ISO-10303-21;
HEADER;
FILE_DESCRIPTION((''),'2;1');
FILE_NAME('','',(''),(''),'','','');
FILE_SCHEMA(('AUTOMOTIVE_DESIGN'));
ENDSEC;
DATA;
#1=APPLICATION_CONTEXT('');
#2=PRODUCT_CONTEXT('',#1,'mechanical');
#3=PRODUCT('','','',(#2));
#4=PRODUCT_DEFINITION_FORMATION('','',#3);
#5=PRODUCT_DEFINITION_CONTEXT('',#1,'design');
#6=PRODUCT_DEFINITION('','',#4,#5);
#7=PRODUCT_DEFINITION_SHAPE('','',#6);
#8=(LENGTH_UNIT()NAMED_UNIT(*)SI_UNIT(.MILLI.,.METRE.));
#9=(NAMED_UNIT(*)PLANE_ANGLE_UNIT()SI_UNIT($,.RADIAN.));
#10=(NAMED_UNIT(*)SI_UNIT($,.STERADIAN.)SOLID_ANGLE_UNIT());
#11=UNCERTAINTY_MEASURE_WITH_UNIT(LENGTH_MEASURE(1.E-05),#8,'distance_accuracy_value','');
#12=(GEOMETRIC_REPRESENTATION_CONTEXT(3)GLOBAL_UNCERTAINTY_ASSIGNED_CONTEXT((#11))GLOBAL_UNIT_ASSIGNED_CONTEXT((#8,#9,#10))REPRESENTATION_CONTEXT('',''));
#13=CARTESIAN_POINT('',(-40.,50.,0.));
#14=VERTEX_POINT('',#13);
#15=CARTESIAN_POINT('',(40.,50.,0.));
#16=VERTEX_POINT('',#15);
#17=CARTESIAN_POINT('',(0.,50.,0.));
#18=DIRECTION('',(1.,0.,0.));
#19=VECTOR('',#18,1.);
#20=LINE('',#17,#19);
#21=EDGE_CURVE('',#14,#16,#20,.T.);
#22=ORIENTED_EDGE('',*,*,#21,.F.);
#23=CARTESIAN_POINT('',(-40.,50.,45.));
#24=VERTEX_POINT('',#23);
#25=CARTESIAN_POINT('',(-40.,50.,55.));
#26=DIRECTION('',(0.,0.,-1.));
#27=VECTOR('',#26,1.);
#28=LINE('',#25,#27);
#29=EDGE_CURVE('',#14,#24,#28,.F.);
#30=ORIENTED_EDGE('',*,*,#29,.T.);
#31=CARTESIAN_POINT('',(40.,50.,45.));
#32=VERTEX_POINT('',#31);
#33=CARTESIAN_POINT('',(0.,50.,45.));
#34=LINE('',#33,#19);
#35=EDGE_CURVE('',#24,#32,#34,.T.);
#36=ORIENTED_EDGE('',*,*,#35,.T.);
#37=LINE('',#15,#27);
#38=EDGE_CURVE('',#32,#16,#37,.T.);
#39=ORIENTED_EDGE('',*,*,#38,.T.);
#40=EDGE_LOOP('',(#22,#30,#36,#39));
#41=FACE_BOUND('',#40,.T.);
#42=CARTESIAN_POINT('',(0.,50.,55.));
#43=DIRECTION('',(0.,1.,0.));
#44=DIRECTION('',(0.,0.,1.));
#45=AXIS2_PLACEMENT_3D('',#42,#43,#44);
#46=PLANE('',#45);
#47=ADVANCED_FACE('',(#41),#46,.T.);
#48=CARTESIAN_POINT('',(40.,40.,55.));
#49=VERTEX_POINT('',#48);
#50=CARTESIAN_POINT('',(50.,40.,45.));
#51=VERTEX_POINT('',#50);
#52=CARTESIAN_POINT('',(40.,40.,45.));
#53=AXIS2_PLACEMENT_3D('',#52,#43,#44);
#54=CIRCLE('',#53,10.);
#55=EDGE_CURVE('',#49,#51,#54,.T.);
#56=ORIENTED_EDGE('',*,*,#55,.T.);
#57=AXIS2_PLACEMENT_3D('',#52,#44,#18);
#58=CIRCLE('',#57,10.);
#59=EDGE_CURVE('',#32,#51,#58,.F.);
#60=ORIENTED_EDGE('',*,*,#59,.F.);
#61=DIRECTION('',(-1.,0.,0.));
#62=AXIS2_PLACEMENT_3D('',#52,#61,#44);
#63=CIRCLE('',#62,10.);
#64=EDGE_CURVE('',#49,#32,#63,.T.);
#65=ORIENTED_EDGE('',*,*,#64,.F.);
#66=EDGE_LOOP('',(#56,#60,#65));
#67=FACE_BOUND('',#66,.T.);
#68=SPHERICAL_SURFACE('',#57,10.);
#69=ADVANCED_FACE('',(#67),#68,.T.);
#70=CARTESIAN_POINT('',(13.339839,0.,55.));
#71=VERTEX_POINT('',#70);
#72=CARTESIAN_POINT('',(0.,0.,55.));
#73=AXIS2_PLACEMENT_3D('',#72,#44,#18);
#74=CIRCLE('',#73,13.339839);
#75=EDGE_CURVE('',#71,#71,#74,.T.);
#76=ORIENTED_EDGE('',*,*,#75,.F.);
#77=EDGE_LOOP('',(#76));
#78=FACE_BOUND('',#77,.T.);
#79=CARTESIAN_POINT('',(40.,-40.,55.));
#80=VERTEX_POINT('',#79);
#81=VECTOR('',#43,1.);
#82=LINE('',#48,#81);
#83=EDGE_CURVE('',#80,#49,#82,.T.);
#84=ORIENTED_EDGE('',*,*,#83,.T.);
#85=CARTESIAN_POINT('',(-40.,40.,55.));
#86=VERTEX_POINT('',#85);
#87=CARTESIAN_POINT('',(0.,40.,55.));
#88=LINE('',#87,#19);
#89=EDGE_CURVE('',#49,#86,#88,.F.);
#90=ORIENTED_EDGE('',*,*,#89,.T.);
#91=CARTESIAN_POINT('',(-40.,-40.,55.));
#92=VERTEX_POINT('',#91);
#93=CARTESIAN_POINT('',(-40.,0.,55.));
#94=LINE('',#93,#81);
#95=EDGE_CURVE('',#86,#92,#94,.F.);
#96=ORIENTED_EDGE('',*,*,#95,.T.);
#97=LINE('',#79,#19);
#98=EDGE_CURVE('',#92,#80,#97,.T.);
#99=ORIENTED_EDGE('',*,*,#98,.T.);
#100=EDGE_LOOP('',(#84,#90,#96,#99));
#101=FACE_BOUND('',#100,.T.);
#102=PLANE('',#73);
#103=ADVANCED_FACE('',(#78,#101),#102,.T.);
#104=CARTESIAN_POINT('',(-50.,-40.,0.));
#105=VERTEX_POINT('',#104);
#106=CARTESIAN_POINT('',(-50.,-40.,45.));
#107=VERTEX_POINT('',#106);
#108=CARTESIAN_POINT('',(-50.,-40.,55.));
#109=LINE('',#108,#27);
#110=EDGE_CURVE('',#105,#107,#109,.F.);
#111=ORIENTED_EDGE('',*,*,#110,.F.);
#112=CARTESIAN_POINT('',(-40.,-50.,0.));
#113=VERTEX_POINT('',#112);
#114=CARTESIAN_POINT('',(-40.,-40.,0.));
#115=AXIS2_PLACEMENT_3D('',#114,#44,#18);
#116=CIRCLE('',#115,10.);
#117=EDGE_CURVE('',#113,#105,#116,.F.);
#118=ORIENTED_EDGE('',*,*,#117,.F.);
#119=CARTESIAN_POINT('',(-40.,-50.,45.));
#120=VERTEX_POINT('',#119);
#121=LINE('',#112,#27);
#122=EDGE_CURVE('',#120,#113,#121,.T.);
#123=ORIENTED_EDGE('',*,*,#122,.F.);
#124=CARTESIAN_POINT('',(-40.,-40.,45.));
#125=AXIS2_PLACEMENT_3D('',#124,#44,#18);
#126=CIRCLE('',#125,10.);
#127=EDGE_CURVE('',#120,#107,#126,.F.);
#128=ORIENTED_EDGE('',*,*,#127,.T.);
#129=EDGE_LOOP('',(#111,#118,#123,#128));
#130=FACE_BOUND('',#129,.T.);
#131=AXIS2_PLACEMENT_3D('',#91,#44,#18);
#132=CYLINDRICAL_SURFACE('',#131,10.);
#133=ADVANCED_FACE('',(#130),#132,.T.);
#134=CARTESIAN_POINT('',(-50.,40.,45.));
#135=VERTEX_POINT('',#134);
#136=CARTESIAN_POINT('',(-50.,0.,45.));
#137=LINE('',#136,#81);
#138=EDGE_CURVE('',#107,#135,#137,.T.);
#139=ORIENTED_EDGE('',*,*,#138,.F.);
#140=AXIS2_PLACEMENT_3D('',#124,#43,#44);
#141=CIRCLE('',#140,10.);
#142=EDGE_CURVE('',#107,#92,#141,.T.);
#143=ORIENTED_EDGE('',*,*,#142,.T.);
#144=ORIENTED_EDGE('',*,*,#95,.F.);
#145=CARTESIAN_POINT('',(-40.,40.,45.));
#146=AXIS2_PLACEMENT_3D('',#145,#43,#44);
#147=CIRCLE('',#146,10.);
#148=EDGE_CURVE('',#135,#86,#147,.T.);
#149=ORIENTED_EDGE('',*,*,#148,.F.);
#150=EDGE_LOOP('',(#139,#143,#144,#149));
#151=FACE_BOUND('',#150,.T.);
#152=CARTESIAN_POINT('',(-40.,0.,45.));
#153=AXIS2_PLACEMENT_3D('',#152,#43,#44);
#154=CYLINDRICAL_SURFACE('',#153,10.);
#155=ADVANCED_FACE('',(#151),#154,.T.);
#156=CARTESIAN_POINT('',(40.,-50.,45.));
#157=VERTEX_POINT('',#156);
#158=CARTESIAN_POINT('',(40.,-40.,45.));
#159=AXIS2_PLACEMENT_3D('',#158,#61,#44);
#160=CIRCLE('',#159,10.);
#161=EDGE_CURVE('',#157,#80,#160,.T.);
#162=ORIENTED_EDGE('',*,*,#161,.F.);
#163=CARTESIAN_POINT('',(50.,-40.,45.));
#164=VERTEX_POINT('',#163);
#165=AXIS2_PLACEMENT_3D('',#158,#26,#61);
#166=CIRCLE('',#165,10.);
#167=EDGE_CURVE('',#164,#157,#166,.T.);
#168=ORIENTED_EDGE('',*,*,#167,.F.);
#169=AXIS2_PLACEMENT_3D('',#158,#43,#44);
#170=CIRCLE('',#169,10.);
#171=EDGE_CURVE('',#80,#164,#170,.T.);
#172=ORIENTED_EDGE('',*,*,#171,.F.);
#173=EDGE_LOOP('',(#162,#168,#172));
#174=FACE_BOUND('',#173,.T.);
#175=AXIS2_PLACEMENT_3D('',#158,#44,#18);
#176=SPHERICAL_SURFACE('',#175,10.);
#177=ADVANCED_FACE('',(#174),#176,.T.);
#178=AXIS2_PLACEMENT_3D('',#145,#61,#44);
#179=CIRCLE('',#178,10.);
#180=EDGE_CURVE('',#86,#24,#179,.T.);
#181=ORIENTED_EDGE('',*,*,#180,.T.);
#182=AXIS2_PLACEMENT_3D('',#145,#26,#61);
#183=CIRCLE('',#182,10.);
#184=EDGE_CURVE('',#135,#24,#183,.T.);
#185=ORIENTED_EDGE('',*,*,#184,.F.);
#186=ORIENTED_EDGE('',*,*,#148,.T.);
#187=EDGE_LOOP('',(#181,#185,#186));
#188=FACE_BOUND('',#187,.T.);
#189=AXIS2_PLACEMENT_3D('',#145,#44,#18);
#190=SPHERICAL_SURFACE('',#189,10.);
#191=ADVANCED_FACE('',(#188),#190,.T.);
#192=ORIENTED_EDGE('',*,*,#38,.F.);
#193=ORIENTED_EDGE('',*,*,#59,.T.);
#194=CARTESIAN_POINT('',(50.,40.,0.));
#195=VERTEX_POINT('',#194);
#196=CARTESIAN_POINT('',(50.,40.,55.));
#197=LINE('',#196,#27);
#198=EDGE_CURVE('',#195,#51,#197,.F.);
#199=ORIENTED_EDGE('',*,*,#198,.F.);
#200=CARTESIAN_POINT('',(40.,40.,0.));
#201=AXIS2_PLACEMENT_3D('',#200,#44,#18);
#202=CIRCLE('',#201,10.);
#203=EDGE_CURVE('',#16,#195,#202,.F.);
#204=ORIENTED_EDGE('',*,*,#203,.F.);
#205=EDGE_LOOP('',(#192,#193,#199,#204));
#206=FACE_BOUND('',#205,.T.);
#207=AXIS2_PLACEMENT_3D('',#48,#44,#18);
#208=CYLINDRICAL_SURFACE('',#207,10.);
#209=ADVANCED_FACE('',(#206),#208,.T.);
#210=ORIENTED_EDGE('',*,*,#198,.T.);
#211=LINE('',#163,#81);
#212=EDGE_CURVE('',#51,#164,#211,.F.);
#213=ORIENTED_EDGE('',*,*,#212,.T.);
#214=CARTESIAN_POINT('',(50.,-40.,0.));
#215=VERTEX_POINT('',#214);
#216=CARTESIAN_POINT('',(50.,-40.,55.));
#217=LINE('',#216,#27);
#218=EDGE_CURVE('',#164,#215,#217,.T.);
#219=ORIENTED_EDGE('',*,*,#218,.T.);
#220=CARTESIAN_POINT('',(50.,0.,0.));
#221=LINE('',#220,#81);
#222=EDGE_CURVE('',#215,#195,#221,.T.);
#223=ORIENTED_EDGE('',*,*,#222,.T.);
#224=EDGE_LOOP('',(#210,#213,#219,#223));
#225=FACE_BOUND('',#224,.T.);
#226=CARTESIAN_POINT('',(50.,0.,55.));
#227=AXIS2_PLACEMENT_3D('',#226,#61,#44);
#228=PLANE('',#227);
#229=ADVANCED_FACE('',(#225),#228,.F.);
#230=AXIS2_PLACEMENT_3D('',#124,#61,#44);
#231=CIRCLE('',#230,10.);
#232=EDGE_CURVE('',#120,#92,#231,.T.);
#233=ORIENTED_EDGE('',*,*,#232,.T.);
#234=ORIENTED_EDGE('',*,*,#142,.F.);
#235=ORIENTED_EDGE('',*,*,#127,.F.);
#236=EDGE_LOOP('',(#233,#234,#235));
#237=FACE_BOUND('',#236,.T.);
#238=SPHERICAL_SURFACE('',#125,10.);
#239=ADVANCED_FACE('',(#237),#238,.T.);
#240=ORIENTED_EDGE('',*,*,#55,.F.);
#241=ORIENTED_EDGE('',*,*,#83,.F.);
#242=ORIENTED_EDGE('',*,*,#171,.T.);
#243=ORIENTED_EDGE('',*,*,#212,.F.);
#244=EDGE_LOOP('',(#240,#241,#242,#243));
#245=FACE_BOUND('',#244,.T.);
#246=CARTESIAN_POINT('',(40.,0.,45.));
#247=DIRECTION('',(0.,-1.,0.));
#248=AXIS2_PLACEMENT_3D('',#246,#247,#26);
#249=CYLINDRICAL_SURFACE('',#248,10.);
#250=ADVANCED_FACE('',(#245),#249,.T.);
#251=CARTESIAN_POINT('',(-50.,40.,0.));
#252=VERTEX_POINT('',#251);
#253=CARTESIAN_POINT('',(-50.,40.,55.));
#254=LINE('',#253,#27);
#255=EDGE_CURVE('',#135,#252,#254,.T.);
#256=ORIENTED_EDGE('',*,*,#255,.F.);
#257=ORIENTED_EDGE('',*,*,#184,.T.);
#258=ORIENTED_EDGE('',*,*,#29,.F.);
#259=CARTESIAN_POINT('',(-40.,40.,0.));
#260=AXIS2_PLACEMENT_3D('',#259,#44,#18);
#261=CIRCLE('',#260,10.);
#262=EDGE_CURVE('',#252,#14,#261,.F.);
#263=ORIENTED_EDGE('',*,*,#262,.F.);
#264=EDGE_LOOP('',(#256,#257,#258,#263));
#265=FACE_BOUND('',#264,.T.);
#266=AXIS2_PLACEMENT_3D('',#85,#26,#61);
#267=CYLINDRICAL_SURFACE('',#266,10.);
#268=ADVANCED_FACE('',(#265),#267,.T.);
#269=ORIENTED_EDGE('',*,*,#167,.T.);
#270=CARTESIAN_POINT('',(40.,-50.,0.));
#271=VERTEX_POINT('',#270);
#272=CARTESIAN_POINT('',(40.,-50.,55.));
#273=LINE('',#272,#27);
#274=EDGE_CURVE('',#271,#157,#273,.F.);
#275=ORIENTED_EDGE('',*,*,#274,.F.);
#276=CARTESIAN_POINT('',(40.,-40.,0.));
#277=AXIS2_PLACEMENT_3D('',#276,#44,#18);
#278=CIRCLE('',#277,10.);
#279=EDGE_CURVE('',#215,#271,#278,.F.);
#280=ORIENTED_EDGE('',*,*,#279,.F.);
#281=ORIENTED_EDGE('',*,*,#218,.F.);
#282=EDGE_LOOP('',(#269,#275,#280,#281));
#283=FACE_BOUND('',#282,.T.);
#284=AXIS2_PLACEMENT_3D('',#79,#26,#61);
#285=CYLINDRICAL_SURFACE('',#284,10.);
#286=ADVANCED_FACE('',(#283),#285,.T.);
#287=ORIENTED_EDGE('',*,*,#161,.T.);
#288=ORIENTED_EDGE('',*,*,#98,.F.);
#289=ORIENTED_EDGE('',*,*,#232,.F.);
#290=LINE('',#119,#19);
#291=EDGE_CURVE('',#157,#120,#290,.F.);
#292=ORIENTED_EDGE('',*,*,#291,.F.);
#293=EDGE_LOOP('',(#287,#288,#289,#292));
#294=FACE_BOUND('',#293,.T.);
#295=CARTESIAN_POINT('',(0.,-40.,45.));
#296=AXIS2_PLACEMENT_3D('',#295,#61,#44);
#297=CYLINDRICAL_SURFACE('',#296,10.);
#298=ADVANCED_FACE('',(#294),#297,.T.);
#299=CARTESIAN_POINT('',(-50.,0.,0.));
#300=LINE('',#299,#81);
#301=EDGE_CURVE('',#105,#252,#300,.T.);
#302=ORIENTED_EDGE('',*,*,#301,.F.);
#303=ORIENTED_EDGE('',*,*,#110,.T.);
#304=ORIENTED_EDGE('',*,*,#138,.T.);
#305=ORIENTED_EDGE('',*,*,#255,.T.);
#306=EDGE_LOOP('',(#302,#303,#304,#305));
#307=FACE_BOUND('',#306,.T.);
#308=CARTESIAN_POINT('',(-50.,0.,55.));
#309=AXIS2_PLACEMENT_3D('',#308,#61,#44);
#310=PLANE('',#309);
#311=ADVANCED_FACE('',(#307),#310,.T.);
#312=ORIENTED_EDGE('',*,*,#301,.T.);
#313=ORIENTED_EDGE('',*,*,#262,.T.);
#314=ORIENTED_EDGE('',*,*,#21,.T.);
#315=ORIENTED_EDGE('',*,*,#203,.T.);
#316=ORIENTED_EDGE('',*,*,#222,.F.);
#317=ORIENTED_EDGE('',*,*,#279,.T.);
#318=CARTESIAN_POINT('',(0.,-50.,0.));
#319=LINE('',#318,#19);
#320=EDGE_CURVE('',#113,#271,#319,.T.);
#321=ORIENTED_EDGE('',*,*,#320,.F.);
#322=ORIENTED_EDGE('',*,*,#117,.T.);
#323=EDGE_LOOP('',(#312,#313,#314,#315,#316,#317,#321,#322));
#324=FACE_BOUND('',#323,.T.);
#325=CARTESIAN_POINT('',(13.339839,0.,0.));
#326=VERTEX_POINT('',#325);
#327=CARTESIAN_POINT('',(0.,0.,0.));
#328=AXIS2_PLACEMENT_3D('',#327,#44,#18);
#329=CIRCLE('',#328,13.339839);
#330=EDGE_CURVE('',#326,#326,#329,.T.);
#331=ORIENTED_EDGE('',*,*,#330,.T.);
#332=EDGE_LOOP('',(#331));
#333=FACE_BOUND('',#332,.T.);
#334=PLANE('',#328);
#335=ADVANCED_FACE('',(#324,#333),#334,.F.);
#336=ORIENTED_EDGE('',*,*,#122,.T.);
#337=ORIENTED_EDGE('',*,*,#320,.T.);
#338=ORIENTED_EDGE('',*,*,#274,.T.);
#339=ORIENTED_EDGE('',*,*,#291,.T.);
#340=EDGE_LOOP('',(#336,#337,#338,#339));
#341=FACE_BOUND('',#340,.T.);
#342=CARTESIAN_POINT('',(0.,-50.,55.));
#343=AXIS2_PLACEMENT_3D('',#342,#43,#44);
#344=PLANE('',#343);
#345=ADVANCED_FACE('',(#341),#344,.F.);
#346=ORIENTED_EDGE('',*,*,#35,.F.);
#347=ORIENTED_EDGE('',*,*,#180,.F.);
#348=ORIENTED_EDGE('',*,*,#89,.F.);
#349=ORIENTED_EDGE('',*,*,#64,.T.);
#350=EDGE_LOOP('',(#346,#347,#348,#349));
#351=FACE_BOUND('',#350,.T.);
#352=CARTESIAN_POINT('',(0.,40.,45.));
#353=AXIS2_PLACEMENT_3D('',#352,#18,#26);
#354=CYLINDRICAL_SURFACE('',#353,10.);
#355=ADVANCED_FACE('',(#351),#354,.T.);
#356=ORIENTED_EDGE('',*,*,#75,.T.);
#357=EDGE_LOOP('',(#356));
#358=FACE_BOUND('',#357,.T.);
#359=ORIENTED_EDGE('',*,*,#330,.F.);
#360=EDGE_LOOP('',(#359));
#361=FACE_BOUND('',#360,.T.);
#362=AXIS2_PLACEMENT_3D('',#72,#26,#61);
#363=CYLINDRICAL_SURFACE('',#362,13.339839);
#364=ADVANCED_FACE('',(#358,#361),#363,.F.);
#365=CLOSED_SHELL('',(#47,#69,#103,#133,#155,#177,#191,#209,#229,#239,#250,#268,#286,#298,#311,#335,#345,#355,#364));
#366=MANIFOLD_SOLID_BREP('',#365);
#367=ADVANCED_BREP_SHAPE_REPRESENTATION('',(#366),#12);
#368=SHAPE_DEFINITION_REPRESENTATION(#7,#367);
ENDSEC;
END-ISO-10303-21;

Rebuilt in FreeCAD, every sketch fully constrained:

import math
import FreeCAD as App
import Part
import Sketcher
from FreeCAD import Vector


def edges_at(feature, points):
    """Names of the edges that pass closest to the given points."""
    edges = feature.Shape.Edges
    near = lambda p: min(range(len(edges)), key=lambda i: edges[i].distToShape(Part.Vertex(*p))[0])
    return sorted({f"Edge{near(p) + 1}" for p in points})


def add_polygon(sketch, points):
    """Adds a closed chain of lines whose ends are joined by coincident constraints."""
    first, n = sketch.GeometryCount, len(points)
    for a, b in zip(points, points[1:] + points[:1]):
        sketch.addGeometry(Part.LineSegment(App.Vector(*a, 0), App.Vector(*b, 0)), False)
    for i in range(n):
        sketch.addConstraint(Sketcher.Constraint("Coincident", first + i, 2, first + (i + 1) % n, 1))

doc = App.newDocument("Part")
body = doc.addObject("PartDesign::Body", "Body")

sketch1 = body.newObject("Sketcher::SketchObject", "Sketch")
sketch1.AttachmentSupport = (doc.getObject("XY_Plane"), [""])
sketch1.MapMode = "FlatFace"
add_polygon(sketch1, [(-50, 50), (-50, -50), (50, -50), (50, 50)])
sketch1.addGeometry(Part.ArcOfCircle(Part.Circle(Vector(0, 0, 0), Vector(0, 0, 1), 13), math.radians(0), math.radians(90)), False)
sketch1.addGeometry(Part.ArcOfCircle(Part.Circle(Vector(0, 0, 0), Vector(0, 0, 1), 13), math.radians(-90), math.radians(0)), False)
sketch1.addGeometry(Part.ArcOfCircle(Part.Circle(Vector(0, 0, 0), Vector(0, 0, 1), 13), math.radians(90), math.radians(270)), False)
sketch1.addConstraint([
    Sketcher.Constraint("Tangent", 4, 1, 5, 2),
    Sketcher.Constraint("Tangent", 5, 1, 6, 2),
    Sketcher.Constraint("Tangent", 6, 1, 4, 2),
    Sketcher.Constraint("Vertical", 0),
    Sketcher.Constraint("Horizontal", 1),
    Sketcher.Constraint("Vertical", 2),
    Sketcher.Constraint("Horizontal", 3),
    Sketcher.Constraint("Coincident", 4, 3, -1, 1),
    Sketcher.Constraint("Symmetric", 0, 2, 2, 2, -1, 1),
    Sketcher.Constraint("PointOnObject", 4, 1, -1),
    Sketcher.Constraint("PointOnObject", 5, 1, -2),
    Sketcher.Constraint("PointOnObject", 6, 1, -2),
    Sketcher.Constraint("Equal", 3, 0),
    Sketcher.Constraint("DistanceX", 1, 1, 1, 2, 100.0),
    Sketcher.Constraint("Radius", 4, 13.339839),
])
pad1 = body.newObject("PartDesign::Pad", "Pad")
pad1.Profile = sketch1
pad1.Length = 55
doc.recompute()

fillet = body.newObject("PartDesign::Fillet", "Fillet")
fillet.Base = (pad1, edges_at(pad1, [
    (50, -50, 27.5),
    (-50, -50, 27.5),
    (-50, 50, 27.5),
    (50, 50, 27.5),
]))
fillet.Radius = 10
doc.recompute()

fillet2 = body.newObject("PartDesign::Fillet", "Fillet001")
fillet2.Base = (fillet, edges_at(fillet, [
    (0, -50, 55),
    (-50, 0, 55),
    (50, 0, 55),
    (0, 50, 55),
    (-47.071, 47.071, 55),
    (47.071, 47.071, 55),
    (47.071, -47.071, 55),
    (-47.071, -47.071, 55),
]))
fillet2.Radius = 10

doc.recompute()
